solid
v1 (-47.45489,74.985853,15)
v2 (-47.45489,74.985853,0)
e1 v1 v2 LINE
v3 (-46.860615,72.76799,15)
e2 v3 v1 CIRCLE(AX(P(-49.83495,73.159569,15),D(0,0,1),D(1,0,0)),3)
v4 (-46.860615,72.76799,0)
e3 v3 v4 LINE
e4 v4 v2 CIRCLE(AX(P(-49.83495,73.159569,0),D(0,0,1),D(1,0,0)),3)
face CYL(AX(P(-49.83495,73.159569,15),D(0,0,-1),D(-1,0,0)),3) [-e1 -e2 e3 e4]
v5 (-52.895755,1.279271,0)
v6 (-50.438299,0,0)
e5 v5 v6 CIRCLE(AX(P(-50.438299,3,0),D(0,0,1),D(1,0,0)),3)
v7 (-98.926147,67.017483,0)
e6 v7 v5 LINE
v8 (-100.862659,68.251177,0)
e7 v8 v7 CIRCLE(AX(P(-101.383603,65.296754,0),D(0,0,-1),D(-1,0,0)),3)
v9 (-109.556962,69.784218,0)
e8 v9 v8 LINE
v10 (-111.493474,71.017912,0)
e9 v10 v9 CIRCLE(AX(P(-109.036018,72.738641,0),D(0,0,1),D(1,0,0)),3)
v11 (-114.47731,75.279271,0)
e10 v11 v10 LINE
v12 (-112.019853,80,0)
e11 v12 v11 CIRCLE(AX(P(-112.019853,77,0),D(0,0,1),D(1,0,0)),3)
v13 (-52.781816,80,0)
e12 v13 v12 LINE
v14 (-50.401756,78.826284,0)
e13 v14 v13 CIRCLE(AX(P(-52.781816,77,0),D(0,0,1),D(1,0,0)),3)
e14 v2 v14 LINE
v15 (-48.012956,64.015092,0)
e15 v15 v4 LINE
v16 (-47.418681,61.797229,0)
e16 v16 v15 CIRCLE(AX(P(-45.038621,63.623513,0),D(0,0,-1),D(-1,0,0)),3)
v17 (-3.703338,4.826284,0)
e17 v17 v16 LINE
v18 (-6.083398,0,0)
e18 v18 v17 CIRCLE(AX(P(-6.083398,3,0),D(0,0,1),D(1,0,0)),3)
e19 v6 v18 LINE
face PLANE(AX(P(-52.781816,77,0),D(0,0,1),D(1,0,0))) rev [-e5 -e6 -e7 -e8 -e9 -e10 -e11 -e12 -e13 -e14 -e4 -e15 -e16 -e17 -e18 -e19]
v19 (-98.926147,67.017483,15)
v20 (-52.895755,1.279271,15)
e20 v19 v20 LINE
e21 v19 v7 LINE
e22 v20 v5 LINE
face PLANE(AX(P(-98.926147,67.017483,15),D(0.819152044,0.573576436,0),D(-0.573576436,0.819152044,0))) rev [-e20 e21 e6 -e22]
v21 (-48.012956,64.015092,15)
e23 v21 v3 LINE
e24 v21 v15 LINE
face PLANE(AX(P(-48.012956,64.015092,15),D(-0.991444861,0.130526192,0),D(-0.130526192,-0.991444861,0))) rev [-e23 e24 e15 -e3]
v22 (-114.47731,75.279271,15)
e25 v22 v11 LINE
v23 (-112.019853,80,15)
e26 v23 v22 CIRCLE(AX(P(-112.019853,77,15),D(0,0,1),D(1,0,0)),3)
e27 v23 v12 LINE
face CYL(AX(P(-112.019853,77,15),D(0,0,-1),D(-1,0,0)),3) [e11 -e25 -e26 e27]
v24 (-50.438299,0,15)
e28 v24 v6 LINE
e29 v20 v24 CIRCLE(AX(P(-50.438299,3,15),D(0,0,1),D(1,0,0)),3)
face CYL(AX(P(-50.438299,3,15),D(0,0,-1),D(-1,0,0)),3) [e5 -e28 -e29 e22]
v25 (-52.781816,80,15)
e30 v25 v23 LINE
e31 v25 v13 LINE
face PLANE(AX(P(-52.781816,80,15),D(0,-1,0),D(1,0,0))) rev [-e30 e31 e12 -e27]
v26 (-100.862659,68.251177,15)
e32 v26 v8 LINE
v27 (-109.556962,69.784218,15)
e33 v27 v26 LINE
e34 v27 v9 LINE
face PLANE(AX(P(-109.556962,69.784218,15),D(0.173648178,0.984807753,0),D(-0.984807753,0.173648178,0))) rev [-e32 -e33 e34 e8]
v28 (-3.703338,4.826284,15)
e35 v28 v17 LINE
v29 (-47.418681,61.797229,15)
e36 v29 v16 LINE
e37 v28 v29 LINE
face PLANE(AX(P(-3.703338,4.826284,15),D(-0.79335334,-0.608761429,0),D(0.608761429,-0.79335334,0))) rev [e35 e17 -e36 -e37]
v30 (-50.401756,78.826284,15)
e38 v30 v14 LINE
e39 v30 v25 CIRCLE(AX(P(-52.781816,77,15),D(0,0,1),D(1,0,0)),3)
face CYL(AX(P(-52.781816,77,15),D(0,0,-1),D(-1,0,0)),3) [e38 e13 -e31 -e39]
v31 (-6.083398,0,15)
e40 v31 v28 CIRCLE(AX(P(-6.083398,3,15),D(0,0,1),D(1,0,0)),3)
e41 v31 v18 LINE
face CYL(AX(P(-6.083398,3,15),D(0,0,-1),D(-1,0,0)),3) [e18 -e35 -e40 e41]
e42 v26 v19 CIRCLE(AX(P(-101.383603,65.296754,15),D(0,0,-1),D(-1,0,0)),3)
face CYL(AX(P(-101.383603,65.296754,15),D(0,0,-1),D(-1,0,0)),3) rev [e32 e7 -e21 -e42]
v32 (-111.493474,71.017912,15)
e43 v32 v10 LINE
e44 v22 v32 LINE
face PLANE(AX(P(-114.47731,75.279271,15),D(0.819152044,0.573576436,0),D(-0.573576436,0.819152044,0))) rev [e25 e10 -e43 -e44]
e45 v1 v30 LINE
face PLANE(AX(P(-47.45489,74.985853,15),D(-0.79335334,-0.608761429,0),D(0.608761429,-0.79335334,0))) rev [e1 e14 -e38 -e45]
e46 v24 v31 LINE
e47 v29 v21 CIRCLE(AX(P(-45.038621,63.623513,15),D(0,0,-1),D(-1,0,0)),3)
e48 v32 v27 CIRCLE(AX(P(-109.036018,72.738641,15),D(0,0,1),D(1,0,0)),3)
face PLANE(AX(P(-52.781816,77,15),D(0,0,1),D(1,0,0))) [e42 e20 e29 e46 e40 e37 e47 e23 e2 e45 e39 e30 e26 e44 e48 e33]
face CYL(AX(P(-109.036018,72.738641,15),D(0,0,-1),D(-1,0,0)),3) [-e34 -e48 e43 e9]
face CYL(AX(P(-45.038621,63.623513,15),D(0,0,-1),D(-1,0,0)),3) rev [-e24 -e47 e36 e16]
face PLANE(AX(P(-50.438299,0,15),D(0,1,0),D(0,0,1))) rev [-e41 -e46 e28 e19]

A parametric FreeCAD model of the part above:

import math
import FreeCAD as App
import Part
import Sketcher
Q = App.Units.Quantity

doc = App.newDocument("Part")
params = doc.addObject("Spreadsheet::Sheet", "Params")
for row, (alias, value) in enumerate([
    ("sketch1_radius", "3 mm"),
    ("pad1_length", "15 mm"),
], start=1):
    params.set(f"A{row}", alias)
    params.set(f"B{row}", "=" + value)
    params.setAlias(f"B{row}", alias)

body = doc.addObject("PartDesign::Body", "Body")

sketch1 = body.newObject("Sketcher::SketchObject", "Sketch")
sketch1.AttachmentSupport = (doc.getObject("XY_Plane"), [""])
sketch1.MapMode = "FlatFace"
sketch1.addGeometry([
    Part.LineSegment(App.Vector(-3.7, 4.8, 0), App.Vector(-47.4, 61.8, 0)),
    Part.ArcOfCircle(Part.Circle(App.Vector(-45, 63.6, 0), App.Vector(0, 0, 1), 3), math.radians(172), math.radians(218)),
    Part.LineSegment(App.Vector(-48, 64, 0), App.Vector(-46.9, 72.8, 0)),
    Part.ArcOfCircle(Part.Circle(App.Vector(-49.8, 73.2, 0), App.Vector(0, 0, 1), 3), math.radians(-8), math.radians(38)),
    Part.LineSegment(App.Vector(-47.5, 75, 0), App.Vector(-50.4, 78.8, 0)),
    Part.ArcOfCircle(Part.Circle(App.Vector(-52.8, 77, 0), App.Vector(0, 0, 1), 3), math.radians(37), math.radians(90)),
    Part.LineSegment(App.Vector(-52.8, 80, 0), App.Vector(-112, 80, 0)),
    Part.ArcOfCircle(Part.Circle(App.Vector(-112, 77, 0), App.Vector(0, 0, 1), 3), math.radians(90), math.radians(215)),
    Part.LineSegment(App.Vector(-114.5, 75.3, 0), App.Vector(-111.5, 71, 0)),
    Part.ArcOfCircle(Part.Circle(App.Vector(-109, 72.7, 0), App.Vector(0, 0, 1), 3), math.radians(-145), math.radians(-100)),
    Part.LineSegment(App.Vector(-109.6, 69.8, 0), App.Vector(-100.9, 68.3, 0)),
    Part.ArcOfCircle(Part.Circle(App.Vector(-101.4, 65.3, 0), App.Vector(0, 0, 1), 3), math.radians(35), math.radians(80)),
    Part.LineSegment(App.Vector(-98.9, 67, 0), App.Vector(-52.9, 1.3, 0)),
    Part.ArcOfCircle(Part.Circle(App.Vector(-50.4, 3, 0), App.Vector(0, 0, 1), 3), math.radians(-145), math.radians(-90)),
    Part.LineSegment(App.Vector(-50.4, 0, 0), App.Vector(-6.1, 0, 0)),
    Part.ArcOfCircle(Part.Circle(App.Vector(-6.1, 3, 0), App.Vector(0, 0, 1), 3), math.radians(-90), math.radians(38)),
], False)
sketch1.addConstraint([
    Sketcher.Constraint("Tangent", 0, 2, 1, 2),
    Sketcher.Constraint("Tangent", 1, 1, 2, 1),
    Sketcher.Constraint("Tangent", 2, 2, 3, 1),
    Sketcher.Constraint("Tangent", 3, 2, 4, 1),
    Sketcher.Constraint("Tangent", 4, 2, 5, 1),
    Sketcher.Constraint("Tangent", 5, 2, 6, 1),
    Sketcher.Constraint("Tangent", 6, 2, 7, 1),
    Sketcher.Constraint("Tangent", 7, 2, 8, 1),
    Sketcher.Constraint("Tangent", 8, 2, 9, 1),
    Sketcher.Constraint("Tangent", 9, 2, 10, 1),
    Sketcher.Constraint("Tangent", 10, 2, 11, 2),
    Sketcher.Constraint("Tangent", 11, 1, 12, 1),
    Sketcher.Constraint("Tangent", 12, 2, 13, 1),
    Sketcher.Constraint("Tangent", 13, 2, 14, 1),
    Sketcher.Constraint("Tangent", 14, 2, 15, 1),
    Sketcher.Constraint("Tangent", 15, 2, 0, 1),
    Sketcher.Constraint("Horizontal", 6),
    Sketcher.Constraint("Horizontal", 14),
    Sketcher.Constraint("Equal", 1, 3),
    Sketcher.Constraint("Equal", 3, 5),
    Sketcher.Constraint("Equal", 5, 7),
    Sketcher.Constraint("Equal", 7, 9),
    Sketcher.Constraint("Equal", 9, 11),
    Sketcher.Constraint("Equal", 11, 13),
    Sketcher.Constraint("Equal", 13, 15),
    Sketcher.Constraint("PointOnObject", 13, 2, -1),
    Sketcher.Constraint("Parallel", 0, 4),
    Sketcher.Constraint("Parallel", 8, 12),
    Sketcher.Constraint("Equal", 2, 10),
    Sketcher.Constraint("Radius", 1, Q("3 mm")),
    Sketcher.Constraint("Angle", 8, Q("-55 deg")),
    Sketcher.Constraint("Angle", 10, Q("-10 deg")),
    Sketcher.Constraint("DistanceY", -1, 1, 5, 3, Q("77 mm")),
    Sketcher.Constraint("Angle", 0, Q("127.5 deg")),
    Sketcher.Constraint("Angle", 2, Q("82.5 deg")),
    Sketcher.Constraint("DistanceX", 14, 1, 14, 2, Q("44.354901 mm")),
    Sketcher.Constraint("DistanceX", 13, 3, -1, 1, Q("50.438299 mm")),
    Sketcher.Constraint("DistanceX", 9, 3, 5, 3, Q("56.254202 mm")),
    Sketcher.Constraint("DistanceX", 5, 3, 2, 2, Q("5.921201 mm")),
    Sketcher.Constraint("DistanceY", 1, 1, 2, 2, Q("8.752899 mm")),
])
sketch1.setExpression("Constraints[29]", "Params.sketch1_radius")
pad1 = body.newObject("PartDesign::Pad", "Pad")
pad1.Profile = sketch1
pad1.setExpression("Length", "Params.pad1_length")

doc.recompute()
